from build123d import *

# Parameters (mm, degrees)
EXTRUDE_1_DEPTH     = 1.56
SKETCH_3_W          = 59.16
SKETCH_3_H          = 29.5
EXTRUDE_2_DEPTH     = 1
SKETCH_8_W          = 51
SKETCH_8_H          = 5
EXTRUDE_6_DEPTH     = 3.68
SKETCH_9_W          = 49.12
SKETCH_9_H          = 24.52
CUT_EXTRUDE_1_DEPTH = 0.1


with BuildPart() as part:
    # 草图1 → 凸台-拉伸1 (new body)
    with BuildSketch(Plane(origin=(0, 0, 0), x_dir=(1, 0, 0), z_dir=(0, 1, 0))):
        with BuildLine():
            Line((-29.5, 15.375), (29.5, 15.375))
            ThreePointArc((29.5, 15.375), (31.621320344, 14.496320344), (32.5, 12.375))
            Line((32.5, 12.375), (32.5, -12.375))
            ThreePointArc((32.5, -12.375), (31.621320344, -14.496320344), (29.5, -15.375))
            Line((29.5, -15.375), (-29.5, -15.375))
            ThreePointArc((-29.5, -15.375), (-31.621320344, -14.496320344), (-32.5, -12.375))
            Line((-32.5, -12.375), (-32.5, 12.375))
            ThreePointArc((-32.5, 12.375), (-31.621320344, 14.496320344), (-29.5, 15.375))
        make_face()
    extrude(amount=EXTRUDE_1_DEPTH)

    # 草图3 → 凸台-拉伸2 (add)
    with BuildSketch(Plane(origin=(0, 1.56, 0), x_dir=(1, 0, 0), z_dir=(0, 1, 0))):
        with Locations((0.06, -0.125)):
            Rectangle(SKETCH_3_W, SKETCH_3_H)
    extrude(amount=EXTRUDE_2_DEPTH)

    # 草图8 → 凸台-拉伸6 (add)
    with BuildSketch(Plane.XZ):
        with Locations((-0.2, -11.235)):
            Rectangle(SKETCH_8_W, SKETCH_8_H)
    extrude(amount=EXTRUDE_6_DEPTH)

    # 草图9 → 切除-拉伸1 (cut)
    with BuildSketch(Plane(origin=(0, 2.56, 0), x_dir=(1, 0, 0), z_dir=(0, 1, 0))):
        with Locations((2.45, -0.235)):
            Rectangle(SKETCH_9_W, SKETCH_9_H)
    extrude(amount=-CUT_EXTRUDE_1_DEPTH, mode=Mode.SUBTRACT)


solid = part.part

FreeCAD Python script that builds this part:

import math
import FreeCAD as App
import Part
import Sketcher
from FreeCAD import Vector
Q = App.Units.Quantity

doc = App.newDocument("Part")
body = doc.addObject("PartDesign::Body", "Body")

sketch1 = body.newObject("Sketcher::SketchObject", "Sketch")
sketch1.AttachmentSupport = (doc.getObject("XZ_Plane"), [""])
sketch1.MapMode = "FlatFace"
sketch1.addGeometry([
    Part.LineSegment(Vector(29.5, -15.4, 0), Vector(-29.5, -15.4, 0)),
    Part.ArcOfCircle(Part.Circle(Vector(-29.5, -12.4, 0), Vector(0, 0, 1), 3), math.radians(180), math.radians(270)),
    Part.LineSegment(Vector(-32.5, -12.4, 0), Vector(-32.5, 12.4, 0)),
    Part.ArcOfCircle(Part.Circle(Vector(-29.5, 12.4, 0), Vector(0, 0, 1), 3), math.radians(90), math.radians(180)),
    Part.LineSegment(Vector(-29.5, 15.4, 0), Vector(29.5, 15.4, 0)),
    Part.ArcOfCircle(Part.Circle(Vector(29.5, 12.4, 0), Vector(0, 0, 1), 3), math.radians(0), math.radians(90)),
    Part.LineSegment(Vector(32.5, 12.4, 0), Vector(32.5, -12.4, 0)),
    Part.ArcOfCircle(Part.Circle(Vector(29.5, -12.4, 0), Vector(0, 0, 1), 3), math.radians(-90), math.radians(0)),
], False)
sketch1.addConstraint([
    Sketcher.Constraint("Tangent", 0, 2, 1, 2),
    Sketcher.Constraint("Tangent", 1, 1, 2, 1),
    Sketcher.Constraint("Tangent", 2, 2, 3, 2),
    Sketcher.Constraint("Tangent", 3, 1, 4, 1),
    Sketcher.Constraint("Tangent", 4, 2, 5, 2),
    Sketcher.Constraint("Tangent", 5, 1, 6, 1),
    Sketcher.Constraint("Tangent", 6, 2, 7, 2),
    Sketcher.Constraint("Tangent", 7, 1, 0, 1),
    Sketcher.Constraint("Horizontal", 0),
    Sketcher.Constraint("Vertical", 2),
    Sketcher.Constraint("Horizontal", 4),
    Sketcher.Constraint("Vertical", 6),
    Sketcher.Constraint("Equal", 1, 3),
    Sketcher.Constraint("Equal", 3, 5),
    Sketcher.Constraint("Equal", 5, 7),
    Sketcher.Constraint("Symmetric", 1, 3, 5, 3, -1, 1),
    Sketcher.Constraint("Radius", 1, Q("3 mm")),
    Sketcher.Constraint("DistanceX", 0, 2, 0, 1, Q("59 mm")),
    Sketcher.Constraint("DistanceY", 2, 1, 2, 2, Q("24.75 mm")),
])
pad1 = body.newObject("PartDesign::Pad", "Pad")
pad1.Profile = sketch1
pad1.Length = 1.56
pad1.Reversed = True

sketch2 = body.newObject("Sketcher::SketchObject", "Sketch001")
sketch2.AttachmentSupport = (doc.getObject("XZ_Plane"), [""])
sketch2.MapMode = "FlatFace"
sketch2.AttachmentOffset = App.Placement(Vector(0, 0, -1.56), App.Rotation())
sketch2.addGeometry([
    Part.LineSegment(Vector(-30, -15, 0), Vector(-30, 15, 0)),
    Part.LineSegment(Vector(-30, 15, 0), Vector(30, 15, 0)),
    Part.LineSegment(Vector(30, 15, 0), Vector(30, -15, 0)),
    Part.LineSegment(Vector(30, -15, 0), Vector(-30, -15, 0)),
], False)
sketch2.addConstraint([
    Sketcher.Constraint("Coincident", 0, 2, 1, 1),
    Sketcher.Constraint("Coincident", 1, 2, 2, 1),
    Sketcher.Constraint("Coincident", 2, 2, 3, 1),
    Sketcher.Constraint("Coincident", 3, 2, 0, 1),
    Sketcher.Constraint("Vertical", 0),
    Sketcher.Constraint("Horizontal", 1),
    Sketcher.Constraint("Vertical", 2),
    Sketcher.Constraint("Horizontal", 3),
    Sketcher.Constraint("DistanceY", 0, 1, 0, 2, Q("29.5 mm")),
    Sketcher.Constraint("DistanceX", 1, 1, 1, 2, Q("59.16 mm")),
    Sketcher.Constraint("DistanceX", 0, 2, -1, 1, Q("29.52 mm")),
    Sketcher.Constraint("DistanceY", -1, 1, 0, 2, Q("14.875 mm")),
])
pad2 = body.newObject("PartDesign::Pad", "Pad001")
pad2.Profile = sketch2
pad2.Length = 1
pad2.Reversed = True

sketch3 = body.newObject("Sketcher::SketchObject", "Sketch002")
sketch3.AttachmentSupport = (doc.getObject("XZ_Plane"), [""])
sketch3.MapMode = "FlatFace"
sketch3.addGeometry([
    Part.LineSegment(Vector(-26, -9, 0), Vector(-26, -14, 0)),
    Part.LineSegment(Vector(-26, -14, 0), Vector(25, -14, 0)),
    Part.LineSegment(Vector(25, -14, 0), Vector(25, -9, 0)),
    Part.LineSegment(Vector(25, -9, 0), Vector(-26, -9, 0)),
], False)
sketch3.addConstraint([
    Sketcher.Constraint("Coincident", 0, 2, 1, 1),
    Sketcher.Constraint("Coincident", 1, 2, 2, 1),
    Sketcher.Constraint("Coincident", 2, 2, 3, 1),
    Sketcher.Constraint("Coincident", 3, 2, 0, 1),
    Sketcher.Constraint("Vertical", 0),
    Sketcher.Constraint("Horizontal", 1),
    Sketcher.Constraint("Vertical", 2),
    Sketcher.Constraint("Horizontal", 3),
    Sketcher.Constraint("DistanceX", 1, 1, 1, 2, Q("51 mm")),
    Sketcher.Constraint("DistanceY", 0, 2, 0, 1, Q("5 mm")),
    Sketcher.Constraint("DistanceX", 0, 2, -1, 1, Q("25.7 mm")),
    Sketcher.Constraint("DistanceY", 0, 2, -1, 1, Q("13.735 mm")),
])
pad3 = body.newObject("PartDesign::Pad", "Pad002")
pad3.Profile = sketch3
pad3.Length = 3.68

sketch4 = body.newObject("Sketcher::SketchObject", "Sketch003")
sketch4.AttachmentSupport = (doc.getObject("XZ_Plane"), [""])
sketch4.MapMode = "FlatFace"
sketch4.AttachmentOffset = App.Placement(Vector(0, 0, -2.56), App.Rotation())
sketch4.addGeometry([
    Part.LineSegment(Vector(-22, -12, 0), Vector(-22, 12, 0)),
    Part.LineSegment(Vector(-22, 12, 0), Vector(27, 12, 0)),
    Part.LineSegment(Vector(27, 12, 0), Vector(27, -12, 0)),
    Part.LineSegment(Vector(27, -12, 0), Vector(-22, -12, 0)),
], False)
sketch4.addConstraint([
    Sketcher.Constraint("Coincident", 0, 2, 1, 1),
    Sketcher.Constraint("Coincident", 1, 2, 2, 1),
    Sketcher.Constraint("Coincident", 2, 2, 3, 1),
    Sketcher.Constraint("Coincident", 3, 2, 0, 1),
    Sketcher.Constraint("Vertical", 0),
    Sketcher.Constraint("Horizontal", 1),
    Sketcher.Constraint("Vertical", 2),
    Sketcher.Constraint("Horizontal", 3),
    Sketcher.Constraint("DistanceX", 1, 1, 1, 2, Q("49.12 mm")),
    Sketcher.Constraint("DistanceY", 0, 1, 0, 2, Q("24.52 mm")),
    Sketcher.Constraint("DistanceX", 0, 2, -1, 1, Q("22.11 mm")),
    Sketcher.Constraint("DistanceY", -1, 1, 0, 2, Q("12.495 mm")),
])
pocket1 = body.newObject("PartDesign::Pocket", "Pocket")
pocket1.Profile = sketch4
pocket1.Length = 0.1
pocket1.Reversed = True

doc.recompute()
